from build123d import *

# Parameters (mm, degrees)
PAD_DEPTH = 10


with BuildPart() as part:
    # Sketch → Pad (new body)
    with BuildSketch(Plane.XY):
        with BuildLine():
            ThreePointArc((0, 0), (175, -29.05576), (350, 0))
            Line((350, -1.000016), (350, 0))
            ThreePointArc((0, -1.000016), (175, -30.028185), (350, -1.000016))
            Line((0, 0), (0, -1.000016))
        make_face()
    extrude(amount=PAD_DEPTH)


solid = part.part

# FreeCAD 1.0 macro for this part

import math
import FreeCAD as App
import Part
import Sketcher

doc = App.newDocument("Part")
body = doc.addObject("PartDesign::Body", "Body")

sketch1 = body.newObject("Sketcher::SketchObject", "Sketch")
sketch1.AttachmentSupport = (doc.getObject("XY_Plane"), [""])
sketch1.MapMode = "FlatFace"
sketch1.addGeometry([
    Part.ArcOfCircle(Part.Circle(App.Vector(175, 512.47606, 0), App.Vector(0, 0, 1), 541.53182), math.radians(-108.853977), math.radians(-71.146023)),
    Part.LineSegment(App.Vector(0, 0, 0), App.Vector(0, -1.000016, 0)),
    Part.ArcOfCircle(Part.Circle(App.Vector(175, 511.990752, 0), App.Vector(0, 0, 1), 542.018937), math.radians(-108.836395), math.radians(-71.163605)),
    Part.LineSegment(App.Vector(350, -1.000016, 0), App.Vector(350, 0, 0)),
], False)
sketch1.addConstraint([
    Sketcher.Constraint("Coincident", 0, 1, 1, 1),
    Sketcher.Constraint("Coincident", 1, 2, 2, 1),
    Sketcher.Constraint("Coincident", 2, 2, 3, 1),
    Sketcher.Constraint("Coincident", 3, 2, 0, 2),
    Sketcher.Constraint("Vertical", 1),
    Sketcher.Constraint("Vertical", 3),
    Sketcher.Constraint("PointOnObject", 1, 2, -2),
    Sketcher.Constraint("PointOnObject", 3, 2, -1),
    Sketcher.Constraint("Horizontal", 1, 2, 2, 2),
    Sketcher.Constraint("Horizontal", 0, 1, 3, 2),
    Sketcher.Constraint("DistanceX", -1, 1, 0, 3, 175.0),
    Sketcher.Constraint("Radius", 0, 541.53182),
    Sketcher.Constraint("Radius", 2, 542.018937),
    Sketcher.Constraint("DistanceY", 1, 2, 1, 1, 1.000016),
])
pad1 = body.newObject("PartDesign::Pad", "Pad")
pad1.Profile = sketch1
pad1.Length = 10

doc.recompute()
